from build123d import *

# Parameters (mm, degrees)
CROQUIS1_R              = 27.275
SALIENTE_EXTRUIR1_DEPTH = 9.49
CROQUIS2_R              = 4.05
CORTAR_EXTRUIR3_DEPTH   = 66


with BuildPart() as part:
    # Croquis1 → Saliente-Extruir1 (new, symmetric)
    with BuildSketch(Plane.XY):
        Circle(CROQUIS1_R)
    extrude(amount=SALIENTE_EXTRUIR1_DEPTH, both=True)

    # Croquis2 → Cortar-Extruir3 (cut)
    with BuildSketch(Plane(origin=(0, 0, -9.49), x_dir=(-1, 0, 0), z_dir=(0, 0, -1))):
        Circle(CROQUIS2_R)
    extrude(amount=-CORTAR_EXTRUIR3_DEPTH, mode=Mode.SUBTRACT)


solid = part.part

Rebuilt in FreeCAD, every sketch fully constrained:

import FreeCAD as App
import Part
import Sketcher
from FreeCAD import Vector

doc = App.newDocument("Part")
body = doc.addObject("PartDesign::Body", "Body")

# Sketch on XY plane
sketch1 = body.newObject("Sketcher::SketchObject", "Sketch")
sketch1.AttachmentSupport = (doc.getObject("XY_Plane"), [""])
sketch1.MapMode = "FlatFace"
sketch1.addGeometry(Part.Circle(Vector(0, 0, 0), Vector(0, 0, 1), 27), False)
sketch1.addConstraint([
    Sketcher.Constraint("Coincident", 0, 3, -1, 1),
    Sketcher.Constraint("Diameter", 0, 54.55),
])
pad1 = body.newObject("PartDesign::Pad", "Pad")
pad1.Profile = sketch1
pad1.Length = 18.98
pad1.Midplane = True

# Sketch on XY plane
sketch2 = body.newObject("Sketcher::SketchObject", "Sketch001")
sketch2.AttachmentSupport = (doc.getObject("XY_Plane"), [""])
sketch2.MapMode = "FlatFace"
sketch2.AttachmentOffset = App.Placement(Vector(0, 0, -9.49), App.Rotation())
sketch2.addGeometry(Part.Circle(Vector(0, 0, 0), Vector(0, 0, 1), 4), False)
sketch2.addConstraint([
    Sketcher.Constraint("Coincident", 0, 3, -1, 1),
    Sketcher.Constraint("Diameter", 0, 8.1),
])
pocket1 = body.newObject("PartDesign::Pocket", "Pocket")
pocket1.Profile = sketch2
pocket1.Length = 66
pocket1.Reversed = True

doc.recompute()
